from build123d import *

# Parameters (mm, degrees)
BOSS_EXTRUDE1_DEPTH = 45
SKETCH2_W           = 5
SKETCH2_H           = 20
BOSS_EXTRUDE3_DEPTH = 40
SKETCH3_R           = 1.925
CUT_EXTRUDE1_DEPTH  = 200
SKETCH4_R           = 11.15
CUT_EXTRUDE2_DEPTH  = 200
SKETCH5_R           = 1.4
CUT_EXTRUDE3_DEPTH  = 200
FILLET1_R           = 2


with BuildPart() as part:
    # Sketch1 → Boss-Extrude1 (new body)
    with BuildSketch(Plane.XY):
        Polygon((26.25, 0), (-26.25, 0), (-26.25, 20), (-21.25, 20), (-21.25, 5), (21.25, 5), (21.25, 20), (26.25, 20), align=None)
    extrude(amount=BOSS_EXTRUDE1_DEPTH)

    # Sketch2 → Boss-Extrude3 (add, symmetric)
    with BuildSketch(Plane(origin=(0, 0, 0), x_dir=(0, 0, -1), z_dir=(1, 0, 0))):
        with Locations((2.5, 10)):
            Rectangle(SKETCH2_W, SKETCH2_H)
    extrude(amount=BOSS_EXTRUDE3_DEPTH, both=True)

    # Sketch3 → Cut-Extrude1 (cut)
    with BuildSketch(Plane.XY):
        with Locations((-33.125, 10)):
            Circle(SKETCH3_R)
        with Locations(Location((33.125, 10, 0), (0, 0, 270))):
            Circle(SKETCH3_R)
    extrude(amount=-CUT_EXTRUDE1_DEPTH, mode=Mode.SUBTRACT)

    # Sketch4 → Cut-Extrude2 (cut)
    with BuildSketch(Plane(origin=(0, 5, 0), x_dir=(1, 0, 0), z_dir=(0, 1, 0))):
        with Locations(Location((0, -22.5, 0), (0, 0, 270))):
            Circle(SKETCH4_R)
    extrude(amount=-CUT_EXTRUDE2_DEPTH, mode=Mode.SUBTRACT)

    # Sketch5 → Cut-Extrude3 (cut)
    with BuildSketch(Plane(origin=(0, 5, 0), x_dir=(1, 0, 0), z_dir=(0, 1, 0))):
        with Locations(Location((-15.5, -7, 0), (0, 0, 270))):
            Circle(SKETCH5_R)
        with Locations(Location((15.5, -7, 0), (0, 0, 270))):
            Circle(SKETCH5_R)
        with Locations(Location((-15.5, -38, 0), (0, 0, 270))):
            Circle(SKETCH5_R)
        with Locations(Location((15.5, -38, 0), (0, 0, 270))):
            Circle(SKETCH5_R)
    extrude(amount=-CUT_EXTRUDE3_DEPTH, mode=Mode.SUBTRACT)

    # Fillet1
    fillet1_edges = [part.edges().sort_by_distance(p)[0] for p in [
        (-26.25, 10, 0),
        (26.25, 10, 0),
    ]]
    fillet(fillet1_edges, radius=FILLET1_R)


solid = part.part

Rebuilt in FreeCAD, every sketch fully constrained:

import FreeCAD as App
import Part
import Sketcher


def edges_at(feature, points):
    """Names of the edges that pass closest to the given points."""
    edges = feature.Shape.Edges
    near = lambda p: min(range(len(edges)), key=lambda i: edges[i].distToShape(Part.Vertex(*p))[0])
    return sorted({f"Edge{near(p) + 1}" for p in points})


def add_polygon(sketch, points):
    """Adds a closed chain of lines whose ends are joined by coincident constraints."""
    first, n = sketch.GeometryCount, len(points)
    for a, b in zip(points, points[1:] + points[:1]):
        sketch.addGeometry(Part.LineSegment(App.Vector(*a, 0), App.Vector(*b, 0)), False)
    for i in range(n):
        sketch.addConstraint(Sketcher.Constraint("Coincident", first + i, 2, first + (i + 1) % n, 1))

doc = App.newDocument("Part")
body = doc.addObject("PartDesign::Body", "Body")

sketch1 = body.newObject("Sketcher::SketchObject", "Sketch")
sketch1.AttachmentSupport = (doc.getObject("XY_Plane"), [""])
sketch1.MapMode = "FlatFace"
add_polygon(sketch1, [(-26.25, 0), (26.25, 0), (26.25, 20), (21.25, 20), (21.25, 5), (-21.25, 5), (-21.25, 20), (-26.25, 20)])
sketch1.addConstraint([
    Sketcher.Constraint("Horizontal", 0),
    Sketcher.Constraint("Vertical", 1),
    Sketcher.Constraint("Horizontal", 2),
    Sketcher.Constraint("Vertical", 3),
    Sketcher.Constraint("Horizontal", 4),
    Sketcher.Constraint("Vertical", 5),
    Sketcher.Constraint("Horizontal", 6),
    Sketcher.Constraint("Vertical", 7),
    Sketcher.Constraint("Symmetric", 0, 2, 7, 2, -1, 1),
    Sketcher.Constraint("Symmetric", 2, 2, 5, 2, -2),
    Sketcher.Constraint("DistanceX", 2, 2, 2, 1, 5.0),
    Sketcher.Constraint("DistanceY", 1, 1, 1, 2, 20.0),
    Sketcher.Constraint("DistanceY", 3, 2, 3, 1, 15.0),
    Sketcher.Constraint("DistanceX", 0, 1, 0, 2, 52.5),
])
pad1 = body.newObject("PartDesign::Pad", "Pad")
pad1.Profile = sketch1
pad1.Length = 45

sketch2 = body.newObject("Sketcher::SketchObject", "Sketch001")
sketch2.AttachmentSupport = (doc.getObject("YZ_Plane"), [""])
sketch2.MapMode = "FlatFace"
add_polygon(sketch2, [(20, 0), (0, 0), (0, -5), (20, -5)])
sketch2.addConstraint([
    Sketcher.Constraint("Horizontal", 0),
    Sketcher.Constraint("Vertical", 1),
    Sketcher.Constraint("Horizontal", 2),
    Sketcher.Constraint("Vertical", 3),
    Sketcher.Constraint("Coincident", 0, 2, -1, 1),
    Sketcher.Constraint("DistanceX", 0, 2, 0, 1, 20.0),
    Sketcher.Constraint("DistanceY", 1, 2, 1, 1, 5.0),
])
pad2 = body.newObject("PartDesign::Pad", "Pad001")
pad2.Profile = sketch2
pad2.Length = 80
pad2.Midplane = True

sketch3 = body.newObject("Sketcher::SketchObject", "Sketch002")
sketch3.AttachmentSupport = (doc.getObject("XY_Plane"), [""])
sketch3.MapMode = "FlatFace"
sketch3.addGeometry([
    Part.Circle(App.Vector(-33.125, 10, 0), App.Vector(0, 0, 1), 1.925),
    Part.Circle(App.Vector(33.125, 10, 0), App.Vector(0, 0, 1), 1.925),
], False)
sketch3.addConstraint([
    Sketcher.Constraint("Equal", 0, 1),
    Sketcher.Constraint("Symmetric", 0, 3, 1, 3, -2),
    Sketcher.Constraint("Diameter", 0, 3.85),
    Sketcher.Constraint("DistanceY", -1, 1, 0, 3, 10.0),
    Sketcher.Constraint("DistanceX", 0, 3, 1, 3, 66.25),
])
pocket1 = body.newObject("PartDesign::Pocket", "Pocket")
pocket1.Profile = sketch3
pocket1.Length = 200

sketch4 = body.newObject("Sketcher::SketchObject", "Sketch003")
sketch4.AttachmentSupport = (doc.getObject("XZ_Plane"), [""])
sketch4.MapMode = "FlatFace"
sketch4.AttachmentOffset = App.Placement(App.Vector(0, 0, -5), App.Rotation())
sketch4.addGeometry(Part.Circle(App.Vector(0, 22.5, 0), App.Vector(0, 0, 1), 11.15), False)
sketch4.addConstraint([
    Sketcher.Constraint("PointOnObject", 0, 3, -2),
    Sketcher.Constraint("Diameter", 0, 22.3),
    Sketcher.Constraint("DistanceY", -1, 1, 0, 3, 22.5),
])
pocket2 = body.newObject("PartDesign::Pocket", "Pocket001")
pocket2.Profile = sketch4
pocket2.Length = 200
pocket2.Reversed = True

sketch5 = body.newObject("Sketcher::SketchObject", "Sketch004")
sketch5.AttachmentSupport = (doc.getObject("XZ_Plane"), [""])
sketch5.MapMode = "FlatFace"
sketch5.AttachmentOffset = App.Placement(App.Vector(0, 0, -5), App.Rotation())
sketch5.addGeometry([
    Part.Circle(App.Vector(-15.5, 7, 0), App.Vector(0, 0, 1), 1.4),
    Part.Circle(App.Vector(15.5, 7, 0), App.Vector(0, 0, 1), 1.4),
    Part.Circle(App.Vector(-15.5, 38, 0), App.Vector(0, 0, 1), 1.4),
    Part.Circle(App.Vector(15.5, 38, 0), App.Vector(0, 0, 1), 1.4),
], False)
sketch5.addConstraint([
    Sketcher.Constraint("Equal", 0, 1),
    Sketcher.Constraint("Equal", 1, 2),
    Sketcher.Constraint("Equal", 2, 3),
    Sketcher.Constraint("Symmetric", 0, 3, 1, 3, -2),
    Sketcher.Constraint("Symmetric", 2, 3, 3, 3, -2),
    Sketcher.Constraint("Vertical", 0, 3, 2, 3),
    Sketcher.Constraint("Diameter", 0, 2.8),
    Sketcher.Constraint("DistanceY", -1, 1, 0, 3, 7.0),
    Sketcher.Constraint("DistanceY", -1, 1, 2, 3, 38.0),
    Sketcher.Constraint("DistanceX", 0, 3, 1, 3, 31.0),
])
pocket3 = body.newObject("PartDesign::Pocket", "Pocket002")
pocket3.Profile = sketch5
pocket3.Length = 200
pocket3.Reversed = True
doc.recompute()

fillet = body.newObject("PartDesign::Fillet", "Fillet")
fillet.Base = (pocket3, edges_at(pocket3, [(-26.25, 10, 0), (26.25, 10, 0)]))
fillet.Radius = 2

doc.recompute()
